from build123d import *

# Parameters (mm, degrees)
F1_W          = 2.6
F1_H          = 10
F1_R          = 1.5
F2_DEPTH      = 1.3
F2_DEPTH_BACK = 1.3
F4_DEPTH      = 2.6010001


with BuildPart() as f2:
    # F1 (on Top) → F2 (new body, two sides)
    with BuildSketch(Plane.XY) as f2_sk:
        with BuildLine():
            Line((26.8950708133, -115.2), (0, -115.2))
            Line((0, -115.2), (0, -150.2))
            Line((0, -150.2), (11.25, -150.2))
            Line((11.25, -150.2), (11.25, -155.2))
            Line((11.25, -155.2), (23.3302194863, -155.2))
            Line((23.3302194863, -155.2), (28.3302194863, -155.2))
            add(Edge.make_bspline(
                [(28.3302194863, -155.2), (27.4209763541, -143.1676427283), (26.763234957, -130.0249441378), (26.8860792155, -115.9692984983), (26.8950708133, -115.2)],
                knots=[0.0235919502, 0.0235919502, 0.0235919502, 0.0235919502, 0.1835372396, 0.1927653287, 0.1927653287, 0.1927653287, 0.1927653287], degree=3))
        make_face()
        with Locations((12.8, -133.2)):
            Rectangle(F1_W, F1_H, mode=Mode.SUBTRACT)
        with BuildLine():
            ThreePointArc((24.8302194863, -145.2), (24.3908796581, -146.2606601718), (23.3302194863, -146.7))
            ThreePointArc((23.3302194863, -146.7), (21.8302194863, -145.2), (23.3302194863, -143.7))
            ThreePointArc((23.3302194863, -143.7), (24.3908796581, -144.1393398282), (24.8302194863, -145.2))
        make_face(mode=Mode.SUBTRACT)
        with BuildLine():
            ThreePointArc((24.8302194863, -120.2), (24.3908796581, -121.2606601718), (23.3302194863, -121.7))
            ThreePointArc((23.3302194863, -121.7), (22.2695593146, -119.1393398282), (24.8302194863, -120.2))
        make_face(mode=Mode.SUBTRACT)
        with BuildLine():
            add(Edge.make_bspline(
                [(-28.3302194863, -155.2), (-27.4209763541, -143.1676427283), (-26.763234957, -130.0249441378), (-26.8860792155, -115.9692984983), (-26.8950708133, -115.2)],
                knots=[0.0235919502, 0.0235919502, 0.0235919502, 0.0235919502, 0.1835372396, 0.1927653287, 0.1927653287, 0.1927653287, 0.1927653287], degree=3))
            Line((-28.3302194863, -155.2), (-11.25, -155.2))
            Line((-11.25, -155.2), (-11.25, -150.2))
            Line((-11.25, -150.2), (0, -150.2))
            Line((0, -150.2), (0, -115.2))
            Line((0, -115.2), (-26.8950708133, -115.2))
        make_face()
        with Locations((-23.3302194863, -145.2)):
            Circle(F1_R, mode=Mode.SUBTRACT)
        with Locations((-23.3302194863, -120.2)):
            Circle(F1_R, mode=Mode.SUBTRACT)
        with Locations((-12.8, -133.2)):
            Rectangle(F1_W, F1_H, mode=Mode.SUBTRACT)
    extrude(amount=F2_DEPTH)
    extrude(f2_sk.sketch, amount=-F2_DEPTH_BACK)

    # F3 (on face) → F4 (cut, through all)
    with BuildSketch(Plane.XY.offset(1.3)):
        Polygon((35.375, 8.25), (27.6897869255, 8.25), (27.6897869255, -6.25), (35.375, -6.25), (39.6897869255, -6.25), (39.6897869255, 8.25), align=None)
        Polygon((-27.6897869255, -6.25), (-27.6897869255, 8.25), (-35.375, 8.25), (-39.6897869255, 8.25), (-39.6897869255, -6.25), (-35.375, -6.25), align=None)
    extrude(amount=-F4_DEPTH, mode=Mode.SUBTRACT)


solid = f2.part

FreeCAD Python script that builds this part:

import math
import FreeCAD as App
import Part
import Sketcher

doc = App.newDocument("Part")
params = doc.addObject("Spreadsheet::Sheet", "Params")
for row, (alias, value) in enumerate([
    ("sketch1_diameter", "3 mm"),
    ("sketch1_height", "5 mm"),
    ("sketch1_height2", "10 mm"),
    ("sketch1_width", "22.5 mm"),
    ("sketch1_width2", "2.6 mm"),
    ("pad1_length", "1.3 mm"),
    ("pad1_length2", "1.3 mm"),
    ("sketch2_width", "12 mm"),
    ("sketch2_height", "14.5 mm"),
], start=1):
    params.set(f"A{row}", alias)
    params.set(f"B{row}", "=" + value)
    params.setAlias(f"B{row}", alias)

body = doc.addObject("PartDesign::Body", "Body")

# Sketch on XY plane
sketch1 = body.newObject("Sketcher::SketchObject", "Sketch")
sketch1.AttachmentSupport = (doc.getObject("XY_Plane"), [""])
sketch1.MapMode = "FlatFace"
sketch1.addGeometry(Part.LineSegment(App.Vector(26.895071, -115.2, 0), App.Vector(-26.895071, -115.2, 0)), False)
sketch1.addGeometry(Part.BSplineCurve([App.Vector(-28.330219, -155.2, 0), App.Vector(-27.420976, -143.167643, 0), App.Vector(-26.763235, -130.024944, 0), App.Vector(-26.886079, -115.969298, 0), App.Vector(-26.895071, -115.2, 0)], [4, 1, 4], [0.02359195, 0.18353724, 0.192765329], False, 3, [1, 1, 1, 1, 1], False), False)
sketch1.addGeometry(Part.LineSegment(App.Vector(-28.330219, -155.2, 0), App.Vector(-11.25, -155.2, 0)), False)
sketch1.addGeometry(Part.LineSegment(App.Vector(-11.25, -155.2, 0), App.Vector(-11.25, -150.2, 0)), False)
sketch1.addGeometry(Part.LineSegment(App.Vector(-11.25, -150.2, 0), App.Vector(11.25, -150.2, 0)), False)
sketch1.addGeometry(Part.LineSegment(App.Vector(11.25, -150.2, 0), App.Vector(11.25, -155.2, 0)), False)
sketch1.addGeometry(Part.LineSegment(App.Vector(11.25, -155.2, 0), App.Vector(28.330219, -155.2, 0)), False)
sketch1.addGeometry(Part.BSplineCurve([App.Vector(28.330219, -155.2, 0), App.Vector(27.420976, -143.167643, 0), App.Vector(26.763235, -130.024944, 0), App.Vector(26.886079, -115.969298, 0), App.Vector(26.895071, -115.2, 0)], [4, 1, 4], [0.02359195, 0.18353724, 0.192765329], False, 3, [1, 1, 1, 1, 1], False), False)
sketch1.addGeometry(Part.Circle(App.Vector(-23.330219, -145.2, 0), App.Vector(0, 0, 1), 1.5), False)
sketch1.addGeometry(Part.LineSegment(App.Vector(-11.5, -138.2, 0), App.Vector(-14.1, -138.2, 0)), False)
sketch1.addGeometry(Part.LineSegment(App.Vector(-14.1, -138.2, 0), App.Vector(-14.1, -128.2, 0)), False)
sketch1.addGeometry(Part.LineSegment(App.Vector(-14.1, -128.2, 0), App.Vector(-11.5, -128.2, 0)), False)
sketch1.addGeometry(Part.LineSegment(App.Vector(-11.5, -128.2, 0), App.Vector(-11.5, -138.2, 0)), False)
sketch1.addGeometry(Part.ArcOfCircle(Part.Circle(App.Vector(23.330219, -145.2, 0), App.Vector(0, 0, 1), 1.5), math.radians(0), math.radians(90)), False)
sketch1.addGeometry(Part.ArcOfCircle(Part.Circle(App.Vector(23.330219, -145.2, 0), App.Vector(0, 0, 1), 1.5), math.radians(-90), math.radians(0)), False)
sketch1.addGeometry(Part.ArcOfCircle(Part.Circle(App.Vector(23.330219, -145.2, 0), App.Vector(0, 0, 1), 1.5), math.radians(90), math.radians(270)), False)
sketch1.addGeometry(Part.LineSegment(App.Vector(14.1, -138.2, 0), App.Vector(11.5, -138.2, 0)), False)
sketch1.addGeometry(Part.LineSegment(App.Vector(11.5, -138.2, 0), App.Vector(11.5, -128.2, 0)), False)
sketch1.addGeometry(Part.LineSegment(App.Vector(11.5, -128.2, 0), App.Vector(14.1, -128.2, 0)), False)
sketch1.addGeometry(Part.LineSegment(App.Vector(14.1, -128.2, 0), App.Vector(14.1, -138.2, 0)), False)
sketch1.addGeometry(Part.Circle(App.Vector(-23.330219, -120.2, 0), App.Vector(0, 0, 1), 1.5), False)
sketch1.addGeometry(Part.ArcOfCircle(Part.Circle(App.Vector(23.330219, -120.2, 0), App.Vector(0, 0, 1), 1.5), math.radians(0), math.radians(270)), False)
sketch1.addGeometry(Part.ArcOfCircle(Part.Circle(App.Vector(23.330219, -120.2, 0), App.Vector(0, 0, 1), 1.5), math.radians(-90), math.radians(0)), False)
sketch1.addConstraint(Sketcher.Constraint("Block", 1))
sketch1.addConstraint(Sketcher.Constraint("Block", 7))
sketch1.addConstraint(Sketcher.Constraint("Coincident", 0, 2, 1, 2))
sketch1.addConstraint(Sketcher.Constraint("Coincident", 1, 1, 2, 1))
sketch1.addConstraint(Sketcher.Constraint("Coincident", 2, 2, 3, 1))
sketch1.addConstraint(Sketcher.Constraint("Coincident", 3, 2, 4, 1))
sketch1.addConstraint(Sketcher.Constraint("Coincident", 4, 2, 5, 1))
sketch1.addConstraint(Sketcher.Constraint("Coincident", 5, 2, 6, 1))
sketch1.addConstraint(Sketcher.Constraint("Coincident", 6, 2, 7, 1))
sketch1.addConstraint(Sketcher.Constraint("Coincident", 7, 2, 0, 1))
sketch1.addConstraint(Sketcher.Constraint("Coincident", 9, 2, 10, 1))
sketch1.addConstraint(Sketcher.Constraint("Coincident", 10, 2, 11, 1))
sketch1.addConstraint(Sketcher.Constraint("Coincident", 11, 2, 12, 1))
sketch1.addConstraint(Sketcher.Constraint("Coincident", 12, 2, 9, 1))
sketch1.addConstraint(Sketcher.Constraint("Tangent", 13, 1, 14, 2))
sketch1.addConstraint(Sketcher.Constraint("Tangent", 14, 1, 15, 2))
sketch1.addConstraint(Sketcher.Constraint("Tangent", 15, 1, 13, 2))
sketch1.addConstraint(Sketcher.Constraint("Coincident", 16, 2, 17, 1))
sketch1.addConstraint(Sketcher.Constraint("Coincident", 17, 2, 18, 1))
sketch1.addConstraint(Sketcher.Constraint("Coincident", 18, 2, 19, 1))
sketch1.addConstraint(Sketcher.Constraint("Coincident", 19, 2, 16, 1))
sketch1.addConstraint(Sketcher.Constraint("Tangent", 21, 1, 22, 2))
sketch1.addConstraint(Sketcher.Constraint("Coincident", 22, 1, 21, 2))
sketch1.addConstraint(Sketcher.Constraint("Horizontal", 2))
sketch1.addConstraint(Sketcher.Constraint("Vertical", 3))
sketch1.addConstraint(Sketcher.Constraint("Horizontal", 4))
sketch1.addConstraint(Sketcher.Constraint("Vertical", 5))
sketch1.addConstraint(Sketcher.Constraint("Horizontal", 6))
sketch1.addConstraint(Sketcher.Constraint("Horizontal", 9))
sketch1.addConstraint(Sketcher.Constraint("Vertical", 10))
sketch1.addConstraint(Sketcher.Constraint("Horizontal", 11))
sketch1.addConstraint(Sketcher.Constraint("Vertical", 12))
sketch1.addConstraint(Sketcher.Constraint("Horizontal", 16))
sketch1.addConstraint(Sketcher.Constraint("Vertical", 17))
sketch1.addConstraint(Sketcher.Constraint("Horizontal", 18))
sketch1.addConstraint(Sketcher.Constraint("Vertical", 19))
sketch1.addConstraint(Sketcher.Constraint("Equal", 8, 13))
sketch1.addConstraint(Sketcher.Constraint("Equal", 15, 20))
sketch1.addConstraint(Sketcher.Constraint("Equal", 20, 21))
sketch1.addConstraint(Sketcher.Constraint("Symmetric", 8, 3, 13, 3, -2))
sketch1.addConstraint(Sketcher.Constraint("Symmetric", 20, 3, 21, 3, -2))
sketch1.addConstraint(Sketcher.Constraint("Symmetric", 12, 2, 16, 2, -2))
sketch1.addConstraint(Sketcher.Constraint("Symmetric", 10, 2, 18, 2, -2))
sketch1.addConstraint(Sketcher.Constraint("Horizontal", 15, 3, 13, 1))
sketch1.addConstraint(Sketcher.Constraint("Horizontal", 22, 3, 21, 1))
sketch1.addConstraint(Sketcher.Constraint("Vertical", 8, 3, 20, 3))
sketch1.addConstraint(Sketcher.Constraint("Vertical", 22, 3, 14, 1))
sketch1.addConstraint(Sketcher.Constraint("Vertical", 14, 1, 15, 1))
sketch1.addConstraint(Sketcher.Constraint("Vertical", 15, 1, 22, 1))
sketch1.addConstraint(Sketcher.Constraint("Equal", 2, 6))
sketch1.addConstraint(Sketcher.Constraint("Diameter", 8, 3.0))
sketch1.addConstraint(Sketcher.Constraint("DistanceY", 3, 1, 3, 2, 5.0))
sketch1.addConstraint(Sketcher.Constraint("DistanceY", 10, 1, 10, 2, 10.0))
sketch1.addConstraint(Sketcher.Constraint("DistanceX", 4, 1, 4, 2, 22.5))
sketch1.addConstraint(Sketcher.Constraint("DistanceX", 9, 2, 9, 1, 2.6))
sketch1.addConstraint(Sketcher.Constraint("DistanceY", 8, 3, 20, 3, 25.0))
sketch1.addConstraint(Sketcher.Constraint("DistanceY", 20, 3, 0, 2, 5.0))
sketch1.addConstraint(Sketcher.Constraint("DistanceX", 13, 3, 6, 2, 5.0))
sketch1.addConstraint(Sketcher.Constraint("DistanceY", 8, 3, 9, 2, 7.0))
sketch1.addConstraint(Sketcher.Constraint("DistanceX", 9, 2, -1, 1, 14.1))
sketch1.setExpression("Constraints[50]", "Params.sketch1_diameter")
sketch1.setExpression("Constraints[51]", "Params.sketch1_height")
sketch1.setExpression("Constraints[52]", "Params.sketch1_height2")
sketch1.setExpression("Constraints[53]", "Params.sketch1_width")
sketch1.setExpression("Constraints[54]", "Params.sketch1_width2")
pad1 = body.newObject("PartDesign::Pad", "Pad")
pad1.Profile = sketch1
pad1.Type = "TwoLengths"
pad1.setExpression("Length", "Params.pad1_length")
pad1.setExpression("Length2", "Params.pad1_length2")

# Sketch on XY plane
sketch2 = body.newObject("Sketcher::SketchObject", "Sketch001")
sketch2.AttachmentSupport = (doc.getObject("XY_Plane"), [""])
sketch2.MapMode = "FlatFace"
sketch2.AttachmentOffset = App.Placement(App.Vector(0, 0, 1.3), App.Rotation())
sketch2.addGeometry(Part.LineSegment(App.Vector(28, 8, 0), App.Vector(28, -6, 0)), False)
sketch2.addGeometry(Part.LineSegment(App.Vector(28, -6, 0), App.Vector(40, -6, 0)), False)
sketch2.addGeometry(Part.LineSegment(App.Vector(40, -6, 0), App.Vector(40, 8, 0)), False)
sketch2.addGeometry(Part.LineSegment(App.Vector(40, 8, 0), App.Vector(28, 8, 0)), False)
sketch2.addGeometry(Part.LineSegment(App.Vector(-28, -6, 0), App.Vector(-28, 8, 0)), False)
sketch2.addGeometry(Part.LineSegment(App.Vector(-28, 8, 0), App.Vector(-40, 8, 0)), False)
sketch2.addGeometry(Part.LineSegment(App.Vector(-40, 8, 0), App.Vector(-40, -6, 0)), False)
sketch2.addGeometry(Part.LineSegment(App.Vector(-40, -6, 0), App.Vector(-28, -6, 0)), False)
sketch2.addConstraint(Sketcher.Constraint("Coincident", 0, 2, 1, 1))
sketch2.addConstraint(Sketcher.Constraint("Coincident", 1, 2, 2, 1))
sketch2.addConstraint(Sketcher.Constraint("Coincident", 2, 2, 3, 1))
sketch2.addConstraint(Sketcher.Constraint("Coincident", 3, 2, 0, 1))
sketch2.addConstraint(Sketcher.Constraint("Coincident", 4, 2, 5, 1))
sketch2.addConstraint(Sketcher.Constraint("Coincident", 5, 2, 6, 1))
sketch2.addConstraint(Sketcher.Constraint("Coincident", 6, 2, 7, 1))
sketch2.addConstraint(Sketcher.Constraint("Coincident", 7, 2, 4, 1))
sketch2.addConstraint(Sketcher.Constraint("Vertical", 0))
sketch2.addConstraint(Sketcher.Constraint("Horizontal", 1))
sketch2.addConstraint(Sketcher.Constraint("Vertical", 2))
sketch2.addConstraint(Sketcher.Constraint("Horizontal", 3))
sketch2.addConstraint(Sketcher.Constraint("Vertical", 4))
sketch2.addConstraint(Sketcher.Constraint("Horizontal", 5))
sketch2.addConstraint(Sketcher.Constraint("Vertical", 6))
sketch2.addConstraint(Sketcher.Constraint("Horizontal", 7))
sketch2.addConstraint(Sketcher.Constraint("Symmetric", 3, 2, 4, 2, -2))
sketch2.addConstraint(Sketcher.Constraint("Symmetric", 1, 2, 6, 2, -2))
sketch2.addConstraint(Sketcher.Constraint("DistanceX", 1, 1, 1, 2, 12.0))
sketch2.addConstraint(Sketcher.Constraint("DistanceY", 0, 2, 0, 1, 14.5))
sketch2.addConstraint(Sketcher.Constraint("DistanceY", 0, 2, -1, 1, 6.25))
sketch2.addConstraint(Sketcher.Constraint("DistanceX", -1, 1, 0, 2, 27.689787))
sketch2.setExpression("Constraints[18]", "Params.sketch2_width")
sketch2.setExpression("Constraints[19]", "Params.sketch2_height")
pocket1 = body.newObject("PartDesign::Pocket", "Pocket")
pocket1.Profile = sketch2
pocket1.Type = "ThroughAll"

doc.recompute()
